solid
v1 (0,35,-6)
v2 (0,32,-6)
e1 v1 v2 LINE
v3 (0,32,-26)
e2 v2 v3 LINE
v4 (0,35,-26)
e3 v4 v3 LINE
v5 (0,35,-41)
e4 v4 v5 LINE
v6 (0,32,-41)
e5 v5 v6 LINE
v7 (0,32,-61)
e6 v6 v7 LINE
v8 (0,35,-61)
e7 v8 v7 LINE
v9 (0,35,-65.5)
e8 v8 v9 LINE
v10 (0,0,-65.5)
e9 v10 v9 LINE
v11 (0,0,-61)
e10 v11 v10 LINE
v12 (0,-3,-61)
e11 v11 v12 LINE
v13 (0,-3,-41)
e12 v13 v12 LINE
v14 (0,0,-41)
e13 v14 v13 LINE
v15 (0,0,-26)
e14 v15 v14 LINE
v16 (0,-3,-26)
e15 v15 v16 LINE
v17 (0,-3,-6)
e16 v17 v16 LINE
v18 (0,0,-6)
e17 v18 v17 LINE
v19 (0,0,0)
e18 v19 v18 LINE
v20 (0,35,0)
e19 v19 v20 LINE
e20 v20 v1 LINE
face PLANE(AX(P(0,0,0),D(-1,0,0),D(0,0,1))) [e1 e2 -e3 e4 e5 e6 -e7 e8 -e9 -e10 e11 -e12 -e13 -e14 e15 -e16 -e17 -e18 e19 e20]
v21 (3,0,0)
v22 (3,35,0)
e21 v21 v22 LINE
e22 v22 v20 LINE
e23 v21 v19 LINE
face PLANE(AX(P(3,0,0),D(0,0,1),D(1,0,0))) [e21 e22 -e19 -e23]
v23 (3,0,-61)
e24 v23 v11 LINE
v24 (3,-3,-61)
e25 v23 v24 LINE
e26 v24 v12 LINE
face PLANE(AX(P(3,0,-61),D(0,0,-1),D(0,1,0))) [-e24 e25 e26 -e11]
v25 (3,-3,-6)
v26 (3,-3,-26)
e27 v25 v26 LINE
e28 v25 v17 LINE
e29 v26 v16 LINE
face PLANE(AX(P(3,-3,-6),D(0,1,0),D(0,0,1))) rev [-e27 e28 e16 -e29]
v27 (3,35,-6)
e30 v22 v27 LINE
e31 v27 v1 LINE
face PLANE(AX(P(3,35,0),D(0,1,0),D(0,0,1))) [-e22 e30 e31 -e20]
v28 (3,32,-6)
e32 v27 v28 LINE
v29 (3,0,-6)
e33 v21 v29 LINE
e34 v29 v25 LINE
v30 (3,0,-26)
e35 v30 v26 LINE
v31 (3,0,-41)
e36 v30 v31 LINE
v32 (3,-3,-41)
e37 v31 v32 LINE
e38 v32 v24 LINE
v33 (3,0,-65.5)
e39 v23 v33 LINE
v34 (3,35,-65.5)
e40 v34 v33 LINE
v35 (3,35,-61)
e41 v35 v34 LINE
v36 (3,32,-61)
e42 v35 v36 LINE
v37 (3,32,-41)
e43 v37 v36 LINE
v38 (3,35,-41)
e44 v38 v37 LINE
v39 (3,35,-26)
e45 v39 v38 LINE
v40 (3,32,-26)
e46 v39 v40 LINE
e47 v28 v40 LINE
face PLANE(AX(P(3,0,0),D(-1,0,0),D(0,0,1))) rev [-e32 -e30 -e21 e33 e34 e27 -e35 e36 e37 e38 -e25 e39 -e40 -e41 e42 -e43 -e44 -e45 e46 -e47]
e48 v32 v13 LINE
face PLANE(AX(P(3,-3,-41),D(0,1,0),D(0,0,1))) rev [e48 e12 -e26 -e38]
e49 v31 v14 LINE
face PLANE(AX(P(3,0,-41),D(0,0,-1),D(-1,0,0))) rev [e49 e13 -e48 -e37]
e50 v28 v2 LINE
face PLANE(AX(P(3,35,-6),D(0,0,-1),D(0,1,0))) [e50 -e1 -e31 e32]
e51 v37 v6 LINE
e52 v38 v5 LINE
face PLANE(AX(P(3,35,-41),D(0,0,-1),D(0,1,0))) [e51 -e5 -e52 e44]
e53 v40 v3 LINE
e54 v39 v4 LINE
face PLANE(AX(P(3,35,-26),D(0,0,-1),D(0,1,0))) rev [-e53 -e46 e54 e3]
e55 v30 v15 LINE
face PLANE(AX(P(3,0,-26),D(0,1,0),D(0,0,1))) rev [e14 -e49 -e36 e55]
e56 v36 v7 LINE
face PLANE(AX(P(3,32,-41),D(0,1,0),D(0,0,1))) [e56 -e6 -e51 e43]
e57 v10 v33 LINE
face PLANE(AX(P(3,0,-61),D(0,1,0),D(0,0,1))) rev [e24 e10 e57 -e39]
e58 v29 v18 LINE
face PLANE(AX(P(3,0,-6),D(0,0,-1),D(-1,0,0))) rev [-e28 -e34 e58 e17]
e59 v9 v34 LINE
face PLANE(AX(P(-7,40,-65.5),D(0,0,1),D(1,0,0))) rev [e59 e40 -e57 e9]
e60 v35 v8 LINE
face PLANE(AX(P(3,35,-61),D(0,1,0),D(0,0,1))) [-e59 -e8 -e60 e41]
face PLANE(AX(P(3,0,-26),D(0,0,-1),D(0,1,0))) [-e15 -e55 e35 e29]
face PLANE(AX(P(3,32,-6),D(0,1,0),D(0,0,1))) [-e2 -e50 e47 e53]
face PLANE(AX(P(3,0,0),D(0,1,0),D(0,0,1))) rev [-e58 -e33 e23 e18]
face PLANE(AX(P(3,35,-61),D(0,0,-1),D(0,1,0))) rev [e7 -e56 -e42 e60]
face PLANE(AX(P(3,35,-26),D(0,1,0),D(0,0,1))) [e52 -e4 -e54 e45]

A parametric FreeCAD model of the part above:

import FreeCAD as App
import Part
import Sketcher
Q = App.Units.Quantity


def add_polygon(sketch, points):
    """Adds a closed chain of lines whose ends are joined by coincident constraints."""
    first, n = sketch.GeometryCount, len(points)
    for a, b in zip(points, points[1:] + points[:1]):
        sketch.addGeometry(Part.LineSegment(App.Vector(*a, 0), App.Vector(*b, 0)), False)
    for i in range(n):
        sketch.addConstraint(Sketcher.Constraint("Coincident", first + i, 2, first + (i + 1) % n, 1))

doc = App.newDocument("Part")
body = doc.addObject("PartDesign::Body", "Body")

# Sketch on YZ plane
sketch1 = body.newObject("Sketcher::SketchObject", "Sketch")
sketch1.AttachmentSupport = (doc.getObject("YZ_Plane"), [""])
sketch1.MapMode = "FlatFace"
add_polygon(sketch1, [(0, -26), (0, -41), (-3, -41), (-3, -61), (0, -61), (0, -76), (-3, -76), (-3, -96), (0, -96), (0, -111), (-3, -111), (-3, -131), (0, -131), (0, -146), (-3, -146), (-3, -166), (0, -166), (0, -181), (-3, -181), (-3, -201), (0, -201), (0, -216), (-3, -216), (-3, -236), (0, -236), (0, -251), (-3, -251), (-3, -271), (0, -271), (0, -277), (35, -277), (35, -271), (32, -271), (32, -251), (35, -251), (35, -236), (32, -236), (32, -216), (35, -216), (35, -201), (32, -201), (32, -181), (35, -181), (35, -166), (32, -166), (32, -146), (35, -146), (35, -131), (32, -131), (32, -111), (35, -111), (35, -96), (32, -96), (32, -76), (35, -76), (35, -61), (32, -61), (32, -41), (35, -41), (35, -26), (32, -26), (32, -6), (35, -6), (35, 0), (0, 0), (0, -6), (-3, -6), (-3, -26)])  # lines 0-67
sketch1.addConstraint([
    Sketcher.Constraint("Vertical", 0),
    Sketcher.Constraint("Horizontal", 1),
    Sketcher.Constraint("Vertical", 2),
    Sketcher.Constraint("Horizontal", 3),
    Sketcher.Constraint("Vertical", 4),
    Sketcher.Constraint("Horizontal", 5),
    Sketcher.Constraint("Vertical", 6),
    Sketcher.Constraint("Horizontal", 7),
    Sketcher.Constraint("Vertical", 8),
    Sketcher.Constraint("Horizontal", 9),
    Sketcher.Constraint("Vertical", 10),
    Sketcher.Constraint("Horizontal", 11),
    Sketcher.Constraint("Vertical", 12),
    Sketcher.Constraint("Horizontal", 13),
    Sketcher.Constraint("Vertical", 14),
    Sketcher.Constraint("Horizontal", 15),
    Sketcher.Constraint("Vertical", 16),
    Sketcher.Constraint("Horizontal", 17),
    Sketcher.Constraint("Vertical", 18),
    Sketcher.Constraint("Horizontal", 19),
    Sketcher.Constraint("Vertical", 20),
    Sketcher.Constraint("Horizontal", 21),
    Sketcher.Constraint("Vertical", 22),
    Sketcher.Constraint("Horizontal", 23),
    Sketcher.Constraint("Vertical", 24),
    Sketcher.Constraint("Horizontal", 25),
    Sketcher.Constraint("Vertical", 26),
    Sketcher.Constraint("Horizontal", 27),
    Sketcher.Constraint("Vertical", 28),
    Sketcher.Constraint("Horizontal", 29),
    Sketcher.Constraint("Vertical", 30),
    Sketcher.Constraint("Horizontal", 31),
    Sketcher.Constraint("Vertical", 32),
    Sketcher.Constraint("Horizontal", 33),
    Sketcher.Constraint("Vertical", 34),
    Sketcher.Constraint("Horizontal", 35),
    Sketcher.Constraint("Vertical", 36),
    Sketcher.Constraint("Horizontal", 37),
    Sketcher.Constraint("Vertical", 38),
    Sketcher.Constraint("Horizontal", 39),
    Sketcher.Constraint("Vertical", 40),
    Sketcher.Constraint("Horizontal", 41),
    Sketcher.Constraint("Vertical", 42),
    Sketcher.Constraint("Horizontal", 43),
    Sketcher.Constraint("Vertical", 44),
    Sketcher.Constraint("Horizontal", 45),
    Sketcher.Constraint("Vertical", 46),
    Sketcher.Constraint("Horizontal", 47),
    Sketcher.Constraint("Vertical", 48),
    Sketcher.Constraint("Horizontal", 49),
    Sketcher.Constraint("Vertical", 50),
    Sketcher.Constraint("Horizontal", 51),
    Sketcher.Constraint("Vertical", 52),
    Sketcher.Constraint("Horizontal", 53),
    Sketcher.Constraint("Vertical", 54),
    Sketcher.Constraint("Horizontal", 55),
    Sketcher.Constraint("Vertical", 56),
    Sketcher.Constraint("Horizontal", 57),
    Sketcher.Constraint("Vertical", 58),
    Sketcher.Constraint("Horizontal", 59),
    Sketcher.Constraint("Vertical", 60),
    Sketcher.Constraint("Horizontal", 61),
    Sketcher.Constraint("Vertical", 62),
    Sketcher.Constraint("Horizontal", 63),
    Sketcher.Constraint("Vertical", 64),
    Sketcher.Constraint("Horizontal", 65),
    Sketcher.Constraint("Vertical", 66),
    Sketcher.Constraint("Horizontal", 67),
    Sketcher.Constraint("Coincident", 63, 2, -1, 1),
    Sketcher.Constraint("PointOnObject", 0, 2, -2),
    Sketcher.Constraint("PointOnObject", 3, 2, -2),
    Sketcher.Constraint("PointOnObject", 7, 2, -2),
    Sketcher.Constraint("PointOnObject", 11, 2, -2),
    Sketcher.Constraint("PointOnObject", 15, 2, -2),
    Sketcher.Constraint("PointOnObject", 19, 2, -2),
    Sketcher.Constraint("PointOnObject", 23, 2, -2),
    Sketcher.Constraint("PointOnObject", 27, 2, -2),
    Sketcher.Constraint("Horizontal", 27, 2, 30, 2),
    Sketcher.Constraint("Horizontal", 25, 2, 32, 2),
    Sketcher.Constraint("Horizontal", 23, 2, 34, 2),
    Sketcher.Constraint("Horizontal", 21, 2, 36, 2),
    Sketcher.Constraint("Horizontal", 19, 2, 38, 2),
    Sketcher.Constraint("Horizontal", 17, 2, 40, 2),
    Sketcher.Constraint("Horizontal", 15, 2, 42, 2),
    Sketcher.Constraint("Horizontal", 13, 2, 44, 2),
    Sketcher.Constraint("Horizontal", 11, 2, 46, 2),
    Sketcher.Constraint("Horizontal", 9, 2, 48, 2),
    Sketcher.Constraint("Horizontal", 7, 2, 50, 2),
    Sketcher.Constraint("Horizontal", 5, 2, 52, 2),
    Sketcher.Constraint("Horizontal", 3, 2, 54, 2),
    Sketcher.Constraint("Horizontal", 1, 2, 56, 2),
    Sketcher.Constraint("Horizontal", 61, 2, 64, 2),
    Sketcher.Constraint("Horizontal", 59, 2, 66, 2),
    Sketcher.Constraint("Vertical", 2, 2, 5, 2),
    Sketcher.Constraint("Vertical", 6, 2, 9, 2),
    Sketcher.Constraint("Vertical", 10, 2, 13, 2),
    Sketcher.Constraint("Vertical", 14, 2, 17, 2),
    Sketcher.Constraint("Vertical", 18, 2, 21, 2),
    Sketcher.Constraint("Vertical", 22, 2, 25, 2),
    Sketcher.Constraint("Vertical", 30, 2, 33, 2),
    Sketcher.Constraint("Vertical", 32, 2, 35, 2),
    Sketcher.Constraint("Vertical", 34, 2, 37, 2),
    Sketcher.Constraint("Vertical", 36, 2, 39, 2),
    Sketcher.Constraint("Vertical", 38, 2, 41, 2),
    Sketcher.Constraint("Vertical", 40, 2, 43, 2),
    Sketcher.Constraint("Vertical", 42, 2, 45, 2),
    Sketcher.Constraint("Vertical", 44, 2, 47, 2),
    Sketcher.Constraint("Vertical", 46, 2, 49, 2),
    Sketcher.Constraint("Vertical", 48, 2, 51, 2),
    Sketcher.Constraint("Vertical", 50, 2, 53, 2),
    Sketcher.Constraint("Vertical", 52, 2, 55, 2),
    Sketcher.Constraint("Vertical", 54, 2, 57, 2),
    Sketcher.Constraint("Vertical", 56, 2, 59, 2),
    Sketcher.Constraint("Vertical", 58, 2, 61, 2),
    Sketcher.Constraint("Vertical", 26, 2, 65, 2),
    Sketcher.Constraint("Equal", 27, 31),
    Sketcher.Constraint("Equal", 0, 4),
    Sketcher.Constraint("Equal", 2, 6),
    Sketcher.Constraint("Equal", 4, 8),
    Sketcher.Constraint("Equal", 6, 10),
    Sketcher.Constraint("Equal", 8, 12),
    Sketcher.Constraint("Equal", 10, 14),
    Sketcher.Constraint("Equal", 12, 16),
    Sketcher.Constraint("Equal", 14, 18),
    Sketcher.Constraint("Equal", 16, 20),
    Sketcher.Constraint("Equal", 18, 22),
    Sketcher.Constraint("Equal", 20, 24),
    Sketcher.Constraint("Equal", 22, 26),
    Sketcher.Constraint("Equal", 56, 60),
    Sketcher.Constraint("Equal", 30, 62),
    Sketcher.Constraint("DistanceX", 1, 2, 1, 1, Q("3 mm")),
    Sketcher.Constraint("DistanceX", 29, 1, 29, 2, Q("35 mm")),
    Sketcher.Constraint("DistanceY", 0, 2, 0, 1, Q("15 mm")),
    Sketcher.Constraint("DistanceY", 2, 2, 2, 1, Q("20 mm")),
    Sketcher.Constraint("DistanceY", 28, 2, 28, 1, Q("6 mm")),
])
pad1 = body.newObject("PartDesign::Pad", "Pad")
pad1.Profile = sketch1
pad1.Length = 3

# Sketch on YZ plane
sketch2 = body.newObject("Sketcher::SketchObject", "Sketch001")
sketch2.AttachmentSupport = (doc.getObject("YZ_Plane"), [""])
sketch2.MapMode = "FlatFace"
sketch2.AttachmentOffset = App.Placement(App.Vector(0, 0, 3), App.Rotation())
add_polygon(sketch2, [(40, -66), (-5, -66), (-5, -277), (40, -277)])  # lines 0-3
sketch2.addConstraint([
    Sketcher.Constraint("Horizontal", 0),
    Sketcher.Constraint("Vertical", 1),
    Sketcher.Constraint("Horizontal", 2),
    Sketcher.Constraint("Vertical", 3),
    Sketcher.Constraint("DistanceX", 0, 2, 0, 1, Q("45 mm")),
    Sketcher.Constraint("DistanceY", 1, 2, 1, 1, Q("211.5 mm")),
    Sketcher.Constraint("DistanceX", 0, 2, -1, 1, Q("5 mm")),
    Sketcher.Constraint("DistanceY", 1, 2, -1, 1, Q("277 mm")),
])
pocket1 = body.newObject("PartDesign::Pocket", "Pocket")
pocket1.Profile = sketch2
pocket1.Length = 10

doc.recompute()
